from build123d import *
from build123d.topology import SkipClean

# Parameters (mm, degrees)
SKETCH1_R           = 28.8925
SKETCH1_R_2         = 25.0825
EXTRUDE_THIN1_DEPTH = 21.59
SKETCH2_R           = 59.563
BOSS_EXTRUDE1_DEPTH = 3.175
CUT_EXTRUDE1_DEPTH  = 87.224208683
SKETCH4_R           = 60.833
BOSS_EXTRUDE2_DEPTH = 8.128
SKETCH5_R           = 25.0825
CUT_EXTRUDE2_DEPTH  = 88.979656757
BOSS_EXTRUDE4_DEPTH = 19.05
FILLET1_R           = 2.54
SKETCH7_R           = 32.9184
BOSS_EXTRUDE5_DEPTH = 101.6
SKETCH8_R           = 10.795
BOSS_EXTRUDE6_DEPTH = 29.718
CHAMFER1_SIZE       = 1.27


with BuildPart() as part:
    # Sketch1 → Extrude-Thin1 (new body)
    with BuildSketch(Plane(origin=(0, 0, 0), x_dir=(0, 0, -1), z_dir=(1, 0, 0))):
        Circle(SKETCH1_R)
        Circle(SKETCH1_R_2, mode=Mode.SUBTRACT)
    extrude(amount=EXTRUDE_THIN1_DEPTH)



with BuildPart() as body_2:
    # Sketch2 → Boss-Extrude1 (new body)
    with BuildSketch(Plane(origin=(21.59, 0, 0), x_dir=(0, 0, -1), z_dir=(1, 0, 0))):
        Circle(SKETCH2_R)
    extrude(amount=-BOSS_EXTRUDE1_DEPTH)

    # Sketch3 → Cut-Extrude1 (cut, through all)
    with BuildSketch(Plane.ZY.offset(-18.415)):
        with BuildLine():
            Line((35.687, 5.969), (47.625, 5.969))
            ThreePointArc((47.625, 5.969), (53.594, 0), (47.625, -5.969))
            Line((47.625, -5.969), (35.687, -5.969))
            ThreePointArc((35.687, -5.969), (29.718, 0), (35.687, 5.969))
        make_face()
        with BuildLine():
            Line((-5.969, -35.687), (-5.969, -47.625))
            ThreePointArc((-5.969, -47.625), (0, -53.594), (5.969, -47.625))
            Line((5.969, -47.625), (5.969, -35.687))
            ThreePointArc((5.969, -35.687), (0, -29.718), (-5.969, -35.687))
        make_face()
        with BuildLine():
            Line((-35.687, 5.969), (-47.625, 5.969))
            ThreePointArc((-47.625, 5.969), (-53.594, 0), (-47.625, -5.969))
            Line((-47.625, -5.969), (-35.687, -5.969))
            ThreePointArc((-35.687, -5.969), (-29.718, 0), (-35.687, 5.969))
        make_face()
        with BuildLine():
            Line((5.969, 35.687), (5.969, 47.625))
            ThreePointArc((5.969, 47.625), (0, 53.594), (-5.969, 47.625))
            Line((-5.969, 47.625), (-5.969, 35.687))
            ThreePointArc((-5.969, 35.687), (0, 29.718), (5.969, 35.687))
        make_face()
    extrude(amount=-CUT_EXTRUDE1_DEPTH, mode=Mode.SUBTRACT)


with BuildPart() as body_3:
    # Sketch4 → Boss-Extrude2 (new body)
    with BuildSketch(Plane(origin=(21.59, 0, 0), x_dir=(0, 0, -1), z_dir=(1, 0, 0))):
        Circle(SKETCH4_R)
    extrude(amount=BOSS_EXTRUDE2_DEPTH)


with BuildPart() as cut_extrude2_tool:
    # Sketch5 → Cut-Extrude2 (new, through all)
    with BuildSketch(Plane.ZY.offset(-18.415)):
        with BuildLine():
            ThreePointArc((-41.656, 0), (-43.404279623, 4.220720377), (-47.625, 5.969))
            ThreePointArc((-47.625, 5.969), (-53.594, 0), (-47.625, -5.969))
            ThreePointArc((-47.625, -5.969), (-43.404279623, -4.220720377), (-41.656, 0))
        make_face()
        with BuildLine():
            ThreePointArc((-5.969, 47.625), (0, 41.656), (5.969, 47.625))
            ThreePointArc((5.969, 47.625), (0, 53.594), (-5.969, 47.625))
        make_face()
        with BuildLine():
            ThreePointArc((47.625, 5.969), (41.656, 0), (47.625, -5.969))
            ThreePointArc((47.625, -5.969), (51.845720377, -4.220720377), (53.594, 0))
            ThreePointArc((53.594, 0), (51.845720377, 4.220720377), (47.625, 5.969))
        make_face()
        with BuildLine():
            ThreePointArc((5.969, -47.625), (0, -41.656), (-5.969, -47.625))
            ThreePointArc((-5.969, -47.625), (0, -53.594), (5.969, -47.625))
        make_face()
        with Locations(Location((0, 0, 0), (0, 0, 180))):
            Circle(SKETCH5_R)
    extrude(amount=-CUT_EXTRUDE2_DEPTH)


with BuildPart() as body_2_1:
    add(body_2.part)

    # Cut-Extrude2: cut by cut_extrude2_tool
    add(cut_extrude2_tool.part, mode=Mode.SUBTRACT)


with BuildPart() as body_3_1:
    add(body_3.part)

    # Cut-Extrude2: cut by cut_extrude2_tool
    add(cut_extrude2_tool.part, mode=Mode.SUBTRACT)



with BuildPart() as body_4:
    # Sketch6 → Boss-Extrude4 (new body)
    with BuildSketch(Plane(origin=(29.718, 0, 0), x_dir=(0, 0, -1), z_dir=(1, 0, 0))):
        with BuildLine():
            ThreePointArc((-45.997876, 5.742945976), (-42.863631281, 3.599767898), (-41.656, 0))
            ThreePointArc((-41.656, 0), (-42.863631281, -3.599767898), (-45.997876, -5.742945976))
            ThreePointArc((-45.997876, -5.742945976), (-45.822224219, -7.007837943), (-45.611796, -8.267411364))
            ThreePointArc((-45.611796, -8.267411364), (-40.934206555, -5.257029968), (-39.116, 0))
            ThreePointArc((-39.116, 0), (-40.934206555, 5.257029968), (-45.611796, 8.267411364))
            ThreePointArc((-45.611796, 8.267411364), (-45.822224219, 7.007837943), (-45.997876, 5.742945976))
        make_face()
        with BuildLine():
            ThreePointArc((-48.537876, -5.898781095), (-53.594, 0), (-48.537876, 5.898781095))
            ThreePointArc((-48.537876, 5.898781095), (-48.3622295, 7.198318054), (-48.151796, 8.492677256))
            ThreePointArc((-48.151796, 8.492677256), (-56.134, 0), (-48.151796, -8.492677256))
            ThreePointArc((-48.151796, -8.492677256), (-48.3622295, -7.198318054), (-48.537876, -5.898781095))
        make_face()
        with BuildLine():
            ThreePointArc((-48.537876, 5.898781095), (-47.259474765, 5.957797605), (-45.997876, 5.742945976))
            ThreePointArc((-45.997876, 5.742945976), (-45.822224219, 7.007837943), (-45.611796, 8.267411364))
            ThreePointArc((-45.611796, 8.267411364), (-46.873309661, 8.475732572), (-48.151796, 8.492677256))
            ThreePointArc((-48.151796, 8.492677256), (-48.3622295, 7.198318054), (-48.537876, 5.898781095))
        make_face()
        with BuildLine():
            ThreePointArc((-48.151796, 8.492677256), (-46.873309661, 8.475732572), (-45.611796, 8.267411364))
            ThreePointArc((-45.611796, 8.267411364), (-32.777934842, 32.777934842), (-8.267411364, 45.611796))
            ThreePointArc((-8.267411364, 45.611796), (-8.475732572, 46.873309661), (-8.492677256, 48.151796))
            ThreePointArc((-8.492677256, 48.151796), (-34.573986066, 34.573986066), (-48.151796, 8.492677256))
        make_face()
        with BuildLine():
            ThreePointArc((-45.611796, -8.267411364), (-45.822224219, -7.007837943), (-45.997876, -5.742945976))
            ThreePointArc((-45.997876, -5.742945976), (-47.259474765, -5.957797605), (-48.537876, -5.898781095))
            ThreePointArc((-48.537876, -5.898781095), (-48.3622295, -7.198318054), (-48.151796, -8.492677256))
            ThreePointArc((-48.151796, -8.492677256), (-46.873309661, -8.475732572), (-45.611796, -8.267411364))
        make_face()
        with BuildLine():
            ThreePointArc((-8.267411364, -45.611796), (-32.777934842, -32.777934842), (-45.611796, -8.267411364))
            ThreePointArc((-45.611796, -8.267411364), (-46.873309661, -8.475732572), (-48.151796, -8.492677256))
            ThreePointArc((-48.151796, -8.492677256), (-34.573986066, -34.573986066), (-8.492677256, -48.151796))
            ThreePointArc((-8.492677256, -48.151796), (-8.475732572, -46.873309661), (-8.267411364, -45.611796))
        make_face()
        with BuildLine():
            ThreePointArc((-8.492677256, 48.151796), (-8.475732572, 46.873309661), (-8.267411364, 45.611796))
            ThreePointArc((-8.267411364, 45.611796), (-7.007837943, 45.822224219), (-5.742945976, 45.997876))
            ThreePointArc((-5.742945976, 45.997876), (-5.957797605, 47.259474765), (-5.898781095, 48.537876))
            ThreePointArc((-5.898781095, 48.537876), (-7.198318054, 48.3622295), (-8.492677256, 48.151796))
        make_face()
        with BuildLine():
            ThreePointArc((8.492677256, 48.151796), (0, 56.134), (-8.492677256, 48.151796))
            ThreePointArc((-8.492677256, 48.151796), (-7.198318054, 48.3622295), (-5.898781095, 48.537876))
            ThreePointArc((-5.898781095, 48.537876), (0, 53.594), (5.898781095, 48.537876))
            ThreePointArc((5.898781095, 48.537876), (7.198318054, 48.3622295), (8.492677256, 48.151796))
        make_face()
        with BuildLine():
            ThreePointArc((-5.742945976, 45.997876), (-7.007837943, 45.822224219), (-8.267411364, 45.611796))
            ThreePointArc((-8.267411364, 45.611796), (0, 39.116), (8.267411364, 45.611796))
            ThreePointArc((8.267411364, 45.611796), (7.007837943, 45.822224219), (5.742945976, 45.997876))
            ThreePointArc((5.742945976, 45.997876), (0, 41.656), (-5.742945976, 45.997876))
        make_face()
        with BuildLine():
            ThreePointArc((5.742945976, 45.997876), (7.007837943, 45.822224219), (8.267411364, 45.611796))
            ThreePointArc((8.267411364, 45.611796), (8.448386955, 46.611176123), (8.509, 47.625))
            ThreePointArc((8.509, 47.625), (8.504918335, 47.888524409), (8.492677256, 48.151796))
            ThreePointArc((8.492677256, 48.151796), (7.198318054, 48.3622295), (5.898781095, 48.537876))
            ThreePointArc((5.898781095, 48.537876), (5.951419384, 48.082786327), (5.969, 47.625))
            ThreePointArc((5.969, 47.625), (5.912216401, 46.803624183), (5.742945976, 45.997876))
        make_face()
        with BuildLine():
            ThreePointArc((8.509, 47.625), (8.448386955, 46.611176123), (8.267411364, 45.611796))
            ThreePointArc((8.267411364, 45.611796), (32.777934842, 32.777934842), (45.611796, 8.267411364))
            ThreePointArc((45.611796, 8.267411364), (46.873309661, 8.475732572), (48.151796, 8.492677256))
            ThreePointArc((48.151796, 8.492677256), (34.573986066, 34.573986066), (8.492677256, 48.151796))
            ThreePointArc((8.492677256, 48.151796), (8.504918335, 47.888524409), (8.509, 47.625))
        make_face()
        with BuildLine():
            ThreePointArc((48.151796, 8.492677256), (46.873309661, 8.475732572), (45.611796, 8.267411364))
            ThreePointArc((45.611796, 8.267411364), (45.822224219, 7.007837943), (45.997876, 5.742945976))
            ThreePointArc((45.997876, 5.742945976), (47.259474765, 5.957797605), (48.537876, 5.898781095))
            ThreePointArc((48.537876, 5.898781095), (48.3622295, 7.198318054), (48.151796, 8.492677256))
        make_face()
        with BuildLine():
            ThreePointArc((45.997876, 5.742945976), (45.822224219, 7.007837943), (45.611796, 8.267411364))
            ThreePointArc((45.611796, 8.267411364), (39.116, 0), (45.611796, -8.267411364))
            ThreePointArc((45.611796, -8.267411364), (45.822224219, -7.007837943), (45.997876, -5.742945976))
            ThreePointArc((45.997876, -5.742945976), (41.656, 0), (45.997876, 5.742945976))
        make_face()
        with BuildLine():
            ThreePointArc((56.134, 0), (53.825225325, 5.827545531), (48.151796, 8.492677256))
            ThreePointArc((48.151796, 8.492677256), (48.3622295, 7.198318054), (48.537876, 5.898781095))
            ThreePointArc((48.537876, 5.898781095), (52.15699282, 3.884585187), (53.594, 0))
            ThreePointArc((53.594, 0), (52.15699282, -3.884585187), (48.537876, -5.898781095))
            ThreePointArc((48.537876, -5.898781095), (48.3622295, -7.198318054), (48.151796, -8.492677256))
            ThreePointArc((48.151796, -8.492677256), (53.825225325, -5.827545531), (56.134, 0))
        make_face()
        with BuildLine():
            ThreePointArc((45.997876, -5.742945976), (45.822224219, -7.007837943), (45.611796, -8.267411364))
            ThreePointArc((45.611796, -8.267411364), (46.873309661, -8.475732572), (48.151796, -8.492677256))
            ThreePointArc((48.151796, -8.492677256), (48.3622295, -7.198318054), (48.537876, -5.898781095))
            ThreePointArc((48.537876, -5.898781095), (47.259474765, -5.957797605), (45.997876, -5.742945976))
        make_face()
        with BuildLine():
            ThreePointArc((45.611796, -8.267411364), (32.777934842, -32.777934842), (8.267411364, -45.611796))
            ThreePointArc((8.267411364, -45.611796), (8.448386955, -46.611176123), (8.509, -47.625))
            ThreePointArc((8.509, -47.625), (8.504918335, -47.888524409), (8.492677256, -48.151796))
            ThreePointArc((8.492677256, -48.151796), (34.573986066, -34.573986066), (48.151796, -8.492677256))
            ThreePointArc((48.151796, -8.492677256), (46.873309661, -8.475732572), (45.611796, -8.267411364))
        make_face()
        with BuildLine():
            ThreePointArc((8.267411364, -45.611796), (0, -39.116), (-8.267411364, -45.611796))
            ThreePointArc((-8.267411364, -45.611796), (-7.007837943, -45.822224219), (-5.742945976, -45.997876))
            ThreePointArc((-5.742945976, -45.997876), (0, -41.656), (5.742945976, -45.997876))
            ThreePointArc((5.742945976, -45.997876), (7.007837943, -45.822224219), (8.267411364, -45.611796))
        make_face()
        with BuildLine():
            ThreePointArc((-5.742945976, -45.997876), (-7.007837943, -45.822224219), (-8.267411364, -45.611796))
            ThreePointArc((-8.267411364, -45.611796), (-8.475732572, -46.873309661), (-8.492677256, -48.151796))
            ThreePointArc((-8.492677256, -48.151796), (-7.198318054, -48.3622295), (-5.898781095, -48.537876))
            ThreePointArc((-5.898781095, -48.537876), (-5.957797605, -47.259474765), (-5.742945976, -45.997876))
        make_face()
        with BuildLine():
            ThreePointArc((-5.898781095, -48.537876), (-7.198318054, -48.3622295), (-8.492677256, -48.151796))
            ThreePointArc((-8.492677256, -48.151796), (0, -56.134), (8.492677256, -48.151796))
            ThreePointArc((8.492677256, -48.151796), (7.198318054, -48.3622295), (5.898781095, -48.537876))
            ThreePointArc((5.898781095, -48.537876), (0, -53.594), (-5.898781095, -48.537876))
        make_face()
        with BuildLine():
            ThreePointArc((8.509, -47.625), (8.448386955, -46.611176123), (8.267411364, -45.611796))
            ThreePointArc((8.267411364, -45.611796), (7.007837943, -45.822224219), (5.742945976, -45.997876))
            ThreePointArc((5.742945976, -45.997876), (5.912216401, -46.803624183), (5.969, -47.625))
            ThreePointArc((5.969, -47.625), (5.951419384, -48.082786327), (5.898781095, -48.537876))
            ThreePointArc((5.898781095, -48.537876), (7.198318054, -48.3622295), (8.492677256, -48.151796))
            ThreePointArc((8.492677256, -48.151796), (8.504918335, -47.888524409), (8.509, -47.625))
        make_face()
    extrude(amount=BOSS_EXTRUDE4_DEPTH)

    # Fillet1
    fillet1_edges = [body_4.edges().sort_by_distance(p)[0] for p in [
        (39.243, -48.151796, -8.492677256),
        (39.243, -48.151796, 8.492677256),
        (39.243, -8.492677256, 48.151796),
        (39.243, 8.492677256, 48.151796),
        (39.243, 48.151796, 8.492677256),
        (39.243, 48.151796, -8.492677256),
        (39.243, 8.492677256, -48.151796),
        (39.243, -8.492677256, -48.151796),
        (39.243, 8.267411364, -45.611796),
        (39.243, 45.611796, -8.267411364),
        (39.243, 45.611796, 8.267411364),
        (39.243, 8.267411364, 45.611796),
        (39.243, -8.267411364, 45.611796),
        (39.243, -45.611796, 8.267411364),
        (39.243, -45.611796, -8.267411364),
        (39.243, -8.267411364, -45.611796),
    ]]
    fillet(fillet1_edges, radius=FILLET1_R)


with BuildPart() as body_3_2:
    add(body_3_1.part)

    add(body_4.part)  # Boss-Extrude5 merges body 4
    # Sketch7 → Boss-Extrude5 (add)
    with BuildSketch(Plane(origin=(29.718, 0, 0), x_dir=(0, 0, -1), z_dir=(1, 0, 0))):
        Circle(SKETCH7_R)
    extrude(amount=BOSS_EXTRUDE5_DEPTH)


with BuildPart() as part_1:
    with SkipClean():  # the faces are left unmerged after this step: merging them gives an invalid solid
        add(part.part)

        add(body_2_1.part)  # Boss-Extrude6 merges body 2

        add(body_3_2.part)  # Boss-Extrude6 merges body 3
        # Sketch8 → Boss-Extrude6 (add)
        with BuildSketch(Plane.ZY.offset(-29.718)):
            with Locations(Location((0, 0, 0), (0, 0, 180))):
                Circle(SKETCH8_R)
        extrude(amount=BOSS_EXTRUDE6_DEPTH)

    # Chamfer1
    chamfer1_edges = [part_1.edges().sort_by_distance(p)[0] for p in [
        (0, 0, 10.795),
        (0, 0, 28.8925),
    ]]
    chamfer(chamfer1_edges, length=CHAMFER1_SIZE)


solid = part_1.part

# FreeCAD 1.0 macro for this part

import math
import FreeCAD as App
import Part
import Sketcher

V = App.Vector
Q = App.Units.Quantity


def edges_at(feature, points):
    """Names of the edges that pass closest to the given points."""
    edges = feature.Shape.Edges
    near = lambda p: min(range(len(edges)), key=lambda i: edges[i].distToShape(Part.Vertex(*p))[0])
    return sorted({f"Edge{near(p) + 1}" for p in points})

doc = App.newDocument("Part")
body = doc.addObject("PartDesign::Body", "Body")

sketch1 = doc.addObject("Sketcher::SketchObject", "Sketch")
body.addObject(sketch1)
sketch1.AttachmentSupport = (doc.YZ_Plane, [""])
sketch1.MapMode = "FlatFace"
sketch1.addGeometry([
    Part.Circle(V(0, 0, 0), V(0, 0, 1), 29),
    Part.Circle(V(0, 0, 0), V(0, 0, 1), 25),
], False)
sketch1.addConstraint([
    Sketcher.Constraint("Coincident", 0, 3, -1, 1),
    Sketcher.Constraint("Coincident", 1, 3, -1, 1),
    Sketcher.Constraint("Diameter", 0, Q("2.275 in")),
    Sketcher.Constraint("Diameter", 1, Q("1.975 in")),
])
pad1 = doc.addObject("PartDesign::Pad", "Pad")
body.addObject(pad1)
pad1.Profile = sketch1
pad1.Length = Q("0.85 in")
body2 = doc.addObject("PartDesign::Body", "Body001")

sketch2 = doc.addObject("Sketcher::SketchObject", "Sketch001")
body2.addObject(sketch2)
sketch2.AttachmentSupport = (doc.getObject("YZ_Plane001"), [""])
sketch2.MapMode = "FlatFace"
sketch2.AttachmentOffset = App.Placement(V(0, 0, 0.85 * 25.4), App.Rotation())
sketch2.addGeometry(Part.Circle(V(0, 0, 0), V(0, 0, 1), 60), False)
sketch2.addConstraint([
    Sketcher.Constraint("Coincident", 0, 3, -1, 1),
    Sketcher.Constraint("Diameter", 0, Q("4.69 in")),
])
pad2 = doc.addObject("PartDesign::Pad", "Pad001")
body2.addObject(pad2)
pad2.Profile = sketch2
pad2.Length = Q("0.125 in")
pad2.Reversed = True

sketch3 = doc.addObject("Sketcher::SketchObject", "Sketch002")
body2.addObject(sketch3)
sketch3.AttachmentSupport = (doc.getObject("YZ_Plane001"), [""])
sketch3.MapMode = "FlatFace"
sketch3.AttachmentOffset = App.Placement(V(0, 0, 0.725 * 25.4), App.Rotation())
sketch3.addGeometry([
    Part.LineSegment(V(6, 48, 0), V(6, 36, 0)),
    Part.ArcOfCircle(Part.Circle(V(0, 36, 0), V(0, 0, 1), 6), math.radians(180), math.radians(360)),
    Part.LineSegment(V(-6, 36, 0), V(-6, 48, 0)),
    Part.ArcOfCircle(Part.Circle(V(0, 48, 0), V(0, 0, 1), 6), math.radians(0), math.radians(180)),
    Part.LineSegment(V(-36, -6, 0), V(-48, -6, 0)),
    Part.ArcOfCircle(Part.Circle(V(-48, 0, 0), V(0, 0, 1), 6), math.radians(90), math.radians(270)),
    Part.LineSegment(V(-48, 6, 0), V(-36, 6, 0)),
    Part.ArcOfCircle(Part.Circle(V(-36, 0, 0), V(0, 0, 1), 6), math.radians(-90), math.radians(90)),
    Part.LineSegment(V(6, -36, 0), V(6, -48, 0)),
    Part.ArcOfCircle(Part.Circle(V(0, -48, 0), V(0, 0, 1), 6), math.radians(180), math.radians(360)),
    Part.LineSegment(V(-6, -48, 0), V(-6, -36, 0)),
    Part.ArcOfCircle(Part.Circle(V(0, -36, 0), V(0, 0, 1), 6), math.radians(0), math.radians(180)),
    Part.LineSegment(V(36, 6, 0), V(48, 6, 0)),
    Part.ArcOfCircle(Part.Circle(V(48, 0, 0), V(0, 0, 1), 6), math.radians(-90), math.radians(90)),
    Part.LineSegment(V(48, -6, 0), V(36, -6, 0)),
    Part.ArcOfCircle(Part.Circle(V(36, 0, 0), V(0, 0, 1), 6), math.radians(90), math.radians(270)),
], False)
sketch3.addConstraint([
    Sketcher.Constraint("Tangent", 0, 2, 1, 2),
    Sketcher.Constraint("Tangent", 1, 1, 2, 1),
    Sketcher.Constraint("Tangent", 2, 2, 3, 2),
    Sketcher.Constraint("Tangent", 3, 1, 0, 1),
    Sketcher.Constraint("Tangent", 4, 2, 5, 2),
    Sketcher.Constraint("Tangent", 5, 1, 6, 1),
    Sketcher.Constraint("Tangent", 6, 2, 7, 2),
    Sketcher.Constraint("Tangent", 7, 1, 4, 1),
    Sketcher.Constraint("Tangent", 8, 2, 9, 2),
    Sketcher.Constraint("Tangent", 9, 1, 10, 1),
    Sketcher.Constraint("Tangent", 10, 2, 11, 2),
    Sketcher.Constraint("Tangent", 11, 1, 8, 1),
    Sketcher.Constraint("Tangent", 12, 2, 13, 2),
    Sketcher.Constraint("Tangent", 13, 1, 14, 1),
    Sketcher.Constraint("Tangent", 14, 2, 15, 2),
    Sketcher.Constraint("Tangent", 15, 1, 12, 1),
    Sketcher.Constraint("Vertical", 0),
    Sketcher.Constraint("Vertical", 2),
    Sketcher.Constraint("Horizontal", 4),
    Sketcher.Constraint("Horizontal", 6),
    Sketcher.Constraint("Vertical", 8),
    Sketcher.Constraint("Vertical", 10),
    Sketcher.Constraint("Horizontal", 12),
    Sketcher.Constraint("Horizontal", 14),
    Sketcher.Constraint("Equal", 3, 5),
    Sketcher.Constraint("Equal", 7, 9),
    Sketcher.Constraint("Equal", 11, 13),
    Sketcher.Constraint("Symmetric", 3, 3, 9, 3, -1, 1),
    Sketcher.Constraint("Symmetric", 5, 3, 13, 3, -1, 1),
    Sketcher.Constraint("Symmetric", 7, 3, 15, 3, -2),
    Sketcher.Constraint("Symmetric", 1, 3, 11, 3, -1),
    Sketcher.Constraint("Equal", 14, 0),
    Sketcher.Constraint("Radius", 1, Q("0.235 in")),
    Sketcher.Constraint("DistanceX", 4, 2, 4, 1, Q("0.47 in")),
    Sketcher.Constraint("DistanceY", 9, 3, 1, 3, Q("3.28 in")),
    Sketcher.Constraint("DistanceX", 7, 3, 13, 3, Q("3.28 in")),
])
pocket1 = doc.addObject("PartDesign::Pocket", "Pocket")
body2.addObject(pocket1)
pocket1.Profile = sketch3
pocket1.Type = "ThroughAll"
pocket1.Reversed = True
body3 = doc.addObject("PartDesign::Body", "Body002")

sketch4 = doc.addObject("Sketcher::SketchObject", "Sketch003")
body3.addObject(sketch4)
sketch4.AttachmentSupport = (doc.getObject("YZ_Plane002"), [""])
sketch4.MapMode = "FlatFace"
sketch4.AttachmentOffset = App.Placement(V(0, 0, 0.85 * 25.4), App.Rotation())
sketch4.addGeometry(Part.Circle(V(0, 0, 0), V(0, 0, 1), 61), False)
sketch4.addConstraint([
    Sketcher.Constraint("Coincident", 0, 3, -1, 1),
    Sketcher.Constraint("Diameter", 0, Q("4.79 in")),
])
pad3 = doc.addObject("PartDesign::Pad", "Pad002")
body3.addObject(pad3)
pad3.Profile = sketch4
pad3.Length = Q("0.32 in")
body4 = doc.addObject("PartDesign::Body", "Body003")
body4.AllowCompound = True

sketch5 = doc.addObject("Sketcher::SketchObject", "Sketch004")
body4.addObject(sketch5)
sketch5.AttachmentSupport = (doc.getObject("YZ_Plane003"), [""])
sketch5.MapMode = "FlatFace"
sketch5.AttachmentOffset = App.Placement(V(0, 0, 0.725 * 25.4), App.Rotation())
sketch5.addGeometry([
    Part.ArcOfCircle(Part.Circle(V(0, -48, 0), V(0, 0, 1), 6), math.radians(0), math.radians(90)),
    Part.ArcOfCircle(Part.Circle(V(0, -48, 0), V(0, 0, 1), 6), math.radians(180), math.radians(360)),
    Part.ArcOfCircle(Part.Circle(V(0, -48, 0), V(0, 0, 1), 6), math.radians(90), math.radians(180)),
    Part.Circle(V(48, 0, 0), V(0, 0, 1), 6),
    Part.ArcOfCircle(Part.Circle(V(0, 48, 0), V(0, 0, 1), 6), math.radians(180), math.radians(360)),
    Part.ArcOfCircle(Part.Circle(V(0, 48, 0), V(0, 0, 1), 6), math.radians(90), math.radians(180)),
    Part.ArcOfCircle(Part.Circle(V(0, 48, 0), V(0, 0, 1), 6), math.radians(0), math.radians(90)),
    Part.Circle(V(-48, 0, 0), V(0, 0, 1), 6),
    Part.Circle(V(0, 0, 0), V(0, 0, 1), 25),
], False)
sketch5.addConstraint([
    Sketcher.Constraint("Tangent", 0, 1, 1, 2),
    Sketcher.Constraint("Tangent", 1, 1, 2, 2),
    Sketcher.Constraint("Tangent", 2, 1, 0, 2),
    Sketcher.Constraint("Tangent", 4, 1, 5, 2),
    Sketcher.Constraint("Tangent", 5, 1, 6, 2),
    Sketcher.Constraint("Tangent", 6, 1, 4, 2),
    Sketcher.Constraint("Coincident", 8, 3, -1, 1),
    Sketcher.Constraint("Equal", 2, 3),
    Sketcher.Constraint("Equal", 3, 4),
    Sketcher.Constraint("Equal", 6, 7),
    Sketcher.Constraint("Symmetric", 0, 3, 4, 3, -1, 1),
    Sketcher.Constraint("Symmetric", 3, 3, 7, 3, -1, 1),
    Sketcher.Constraint("Symmetric", 0, 1, 1, 1, -2),
    Sketcher.Constraint("PointOnObject", 3, 3, -1),
    Sketcher.Constraint("PointOnObject", 2, 1, -2),
    Sketcher.Constraint("PointOnObject", 5, 1, -2),
    Sketcher.Constraint("Horizontal", 2, 3, 0, 1),
    Sketcher.Constraint("Horizontal", 6, 3, 4, 1),
    Sketcher.Constraint("Horizontal", 4, 1, 6, 1),
    Sketcher.Constraint("Diameter", 3, Q("0.47 in")),
    Sketcher.Constraint("Diameter", 8, Q("1.975 in")),
    Sketcher.Constraint("DistanceY", 2, 1, -1, 1, Q("1.64 in")),
    Sketcher.Constraint("DistanceX", 0, 1, 3, 3, Q("1.64 in")),
])
pad4 = doc.addObject("PartDesign::Pad", "Pad003")
body4.addObject(pad4)
pad4.Profile = sketch5
pad4.Length = 88.979657
doc.recompute()

body5 = doc.addObject("PartDesign::Body", "Body004")
body5.BaseFeature = body4
boolean = doc.addObject("PartDesign::Boolean", "Boolean")
body2.addObject(boolean)
boolean.Type = "Cut"
boolean.addObjects([body5])
doc.recompute()

boolean2 = doc.addObject("PartDesign::Boolean", "Boolean001")
body3.addObject(boolean2)
boolean2.Type = "Cut"
boolean2.addObjects([body4])
body6 = doc.addObject("PartDesign::Body", "Body005")

sketch6 = doc.addObject("Sketcher::SketchObject", "Sketch005")
body6.addObject(sketch6)
sketch6.AttachmentSupport = (doc.getObject("YZ_Plane005"), [""])
sketch6.MapMode = "FlatFace"
sketch6.AttachmentOffset = App.Placement(V(0, 0, 1.17 * 25.4), App.Rotation())
sketch6.addGeometry([
    Part.ArcOfCircle(Part.Circle(V(-47.6, 0, 0), V(0, 0, 1), 8.5), math.radians(94), math.radians(266)),
    Part.ArcOfCircle(Part.Circle(V(0, 0, 0), V(0, 0, 1), 48.9), math.radians(-170), math.radians(-100)),
    Part.ArcOfCircle(Part.Circle(V(0, -47.6, 0), V(0, 0, 1), 8.5), math.radians(-176), math.radians(-90)),
    Part.ArcOfCircle(Part.Circle(V(0, -47.6, 0), V(0, 0, 1), 8.5), math.radians(-90), math.radians(-4)),
    Part.ArcOfCircle(Part.Circle(V(0, 0, 0), V(0, 0, 1), 48.9), math.radians(-80), math.radians(-10)),
    Part.ArcOfCircle(Part.Circle(V(47.6, 0, 0), V(0, 0, 1), 8.5), math.radians(-86), math.radians(86)),
    Part.ArcOfCircle(Part.Circle(V(0, 0, 0), V(0, 0, 1), 48.9), math.radians(10), math.radians(80)),
    Part.ArcOfCircle(Part.Circle(V(0, 47.6, 0), V(0, 0, 1), 8.5), math.radians(4), math.radians(176)),
    Part.ArcOfCircle(Part.Circle(V(0, 0, 0), V(0, 0, 1), 48.9), math.radians(100), math.radians(170)),
    Part.ArcOfCircle(Part.Circle(V(-47.6, 0, 0), V(0, 0, 1), 6), math.radians(-74), math.radians(74)),
    Part.ArcOfCircle(Part.Circle(V(-47.6, 0, 0), V(0, 0, 1), 6), math.radians(-90), math.radians(-74.18)),
    Part.ArcOfCircle(Part.Circle(V(-47.6, 0, 0), V(0, 0, 1), 6), math.radians(-98.8), math.radians(-90)),
    Part.ArcOfCircle(Part.Circle(V(-47.6, 0, 0), V(0, 0, 1), 6), math.radians(99), math.radians(261)),
    Part.ArcOfCircle(Part.Circle(V(-47.6, 0, 0), V(0, 0, 1), 6), math.radians(74), math.radians(99)),
    Part.ArcOfCircle(Part.Circle(V(0, 47.6, 0), V(0, 0, 1), 6), math.radians(-90), math.radians(-16)),
    Part.ArcOfCircle(Part.Circle(V(0, 47.6, 0), V(0, 0, 1), 6), math.radians(-164), math.radians(-90)),
    Part.ArcOfCircle(Part.Circle(V(0, 47.6, 0), V(0, 0, 1), 6), math.radians(171), math.radians(196)),
    Part.ArcOfCircle(Part.Circle(V(0, 47.6, 0), V(0, 0, 1), 6), math.radians(9), math.radians(171)),
    Part.ArcOfCircle(Part.Circle(V(0, 47.6, 0), V(0, 0, 1), 6), math.radians(-16), math.radians(9)),
    Part.ArcOfCircle(Part.Circle(V(0, 0, 0), V(0, 0, 1), 46.4), math.radians(-170), math.radians(-100)),
    Part.ArcOfCircle(Part.Circle(V(-47.6, 0, 0), V(0, 0, 1), 8.5), math.radians(-76), math.radians(76)),
    Part.ArcOfCircle(Part.Circle(V(0, 0, 0), V(0, 0, 1), 46.4), math.radians(100), math.radians(170)),
    Part.ArcOfCircle(Part.Circle(V(0, 47.6, 0), V(0, 0, 1), 8.5), math.radians(-166), math.radians(-90)),
    Part.ArcOfCircle(Part.Circle(V(0, 47.6, 0), V(0, 0, 1), 8.5), math.radians(-90), math.radians(-14)),
    Part.ArcOfCircle(Part.Circle(V(0, 0, 0), V(0, 0, 1), 46.4), math.radians(10), math.radians(80)),
    Part.ArcOfCircle(Part.Circle(V(47.6, 0, 0), V(0, 0, 1), 8.5), math.radians(104), math.radians(256)),
    Part.ArcOfCircle(Part.Circle(V(0, 0, 0), V(0, 0, 1), 46.4), math.radians(-80), math.radians(-10)),
    Part.ArcOfCircle(Part.Circle(V(0, -47.6, 0), V(0, 0, 1), 8.5), math.radians(14), math.radians(166)),
    Part.ArcOfCircle(Part.Circle(V(0, -47.6, 0), V(0, 0, 1), 6), math.radians(16), math.radians(164)),
    Part.ArcOfCircle(Part.Circle(V(0, -47.6, 0), V(0, 0, 1), 6), math.radians(-9), math.radians(16)),
    Part.ArcOfCircle(Part.Circle(V(0, -47.6, 0), V(0, 0, 1), 6), math.radians(-90), math.radians(-9)),
    Part.ArcOfCircle(Part.Circle(V(0, -47.6, 0), V(0, 0, 1), 6), math.radians(-171), math.radians(-90)),
    Part.ArcOfCircle(Part.Circle(V(0, -47.6, 0), V(0, 0, 1), 6), math.radians(164), math.radians(189)),
    Part.ArcOfCircle(Part.Circle(V(47.6, 0, 0), V(0, 0, 1), 6), math.radians(106), math.radians(254)),
    Part.ArcOfCircle(Part.Circle(V(47.6, 0, 0), V(0, 0, 1), 6), math.radians(81), math.radians(106)),
    Part.ArcOfCircle(Part.Circle(V(47.6, 0, 0), V(0, 0, 1), 6), math.radians(-81), math.radians(81)),
    Part.ArcOfCircle(Part.Circle(V(47.6, 0, 0), V(0, 0, 1), 6), math.radians(-90), math.radians(-81.2)),
    Part.ArcOfCircle(Part.Circle(V(47.6, 0, 0), V(0, 0, 1), 6), math.radians(-105.82), math.radians(-90)),
], False)
sketch6.addConstraint([
    Sketcher.Constraint("Coincident", 0, 2, 1, 1),
    Sketcher.Constraint("Coincident", 1, 2, 2, 1),
    Sketcher.Constraint("Tangent", 2, 2, 3, 1),
    Sketcher.Constraint("Coincident", 3, 2, 4, 1),
    Sketcher.Constraint("Coincident", 4, 2, 5, 1),
    Sketcher.Constraint("Coincident", 5, 2, 6, 1),
    Sketcher.Constraint("Coincident", 6, 2, 7, 1),
    Sketcher.Constraint("Coincident", 7, 2, 8, 1),
    Sketcher.Constraint("Coincident", 8, 2, 0, 1),
    Sketcher.Constraint("Tangent", 9, 1, 10, 2),
    Sketcher.Constraint("Tangent", 10, 1, 11, 2),
    Sketcher.Constraint("Tangent", 11, 1, 12, 2),
    Sketcher.Constraint("Tangent", 12, 1, 13, 2),
    Sketcher.Constraint("Tangent", 13, 1, 9, 2),
    Sketcher.Constraint("Tangent", 14, 1, 15, 2),
    Sketcher.Constraint("Tangent", 15, 1, 16, 2),
    Sketcher.Constraint("Tangent", 16, 1, 17, 2),
    Sketcher.Constraint("Tangent", 17, 1, 18, 2),
    Sketcher.Constraint("Tangent", 18, 1, 14, 2),
    Sketcher.Constraint("Coincident", 19, 1, 20, 1),
    Sketcher.Constraint("Coincident", 20, 2, 21, 2),
    Sketcher.Constraint("Coincident", 21, 1, 22, 1),
    Sketcher.Constraint("Tangent", 22, 2, 23, 1),
    Sketcher.Constraint("Coincident", 23, 2, 24, 2),
    Sketcher.Constraint("Coincident", 24, 1, 25, 1),
    Sketcher.Constraint("Coincident", 25, 2, 26, 2),
    Sketcher.Constraint("Coincident", 26, 1, 27, 1),
    Sketcher.Constraint("Coincident", 27, 2, 19, 2),
    Sketcher.Constraint("Tangent", 28, 1, 29, 2),
    Sketcher.Constraint("Tangent", 29, 1, 30, 2),
    Sketcher.Constraint("Tangent", 30, 1, 31, 2),
    Sketcher.Constraint("Tangent", 31, 1, 32, 2),
    Sketcher.Constraint("Tangent", 32, 1, 28, 2),
    Sketcher.Constraint("Tangent", 33, 1, 34, 2),
    Sketcher.Constraint("Tangent", 34, 1, 35, 2),
    Sketcher.Constraint("Tangent", 35, 1, 36, 2),
    Sketcher.Constraint("Tangent", 36, 1, 37, 2),
    Sketcher.Constraint("Tangent", 37, 1, 33, 2),
    Sketcher.Constraint("Coincident", 1, 3, -1, 1),
    Sketcher.Constraint("Coincident", 4, 3, -1, 1),
    Sketcher.Constraint("Coincident", 6, 3, -1, 1),
    Sketcher.Constraint("Coincident", 8, 3, -1, 1),
    Sketcher.Constraint("Coincident", 19, 3, -1, 1),
    Sketcher.Constraint("Coincident", 21, 3, -1, 1),
    Sketcher.Constraint("Coincident", 24, 3, -1, 1),
    Sketcher.Constraint("Coincident", 26, 3, -1, 1),
    Sketcher.Constraint("Coincident", 9, 3, 0, 3),
    Sketcher.Constraint("Coincident", 11, 3, 0, 3),
    Sketcher.Constraint("Coincident", 14, 3, 7, 3),
    Sketcher.Constraint("Coincident", 16, 3, 7, 3),
    Sketcher.Constraint("Coincident", 20, 3, 0, 3),
    Sketcher.Constraint("Coincident", 22, 3, 7, 3),
    Sketcher.Constraint("Coincident", 25, 3, 5, 3),
    Sketcher.Constraint("Coincident", 27, 3, 2, 3),
    Sketcher.Constraint("Coincident", 28, 3, 2, 3),
    Sketcher.Constraint("Coincident", 30, 3, 2, 3),
    Sketcher.Constraint("Coincident", 33, 3, 5, 3),
    Sketcher.Constraint("Coincident", 35, 3, 5, 3),
    Sketcher.Constraint("Equal", 0, 2),
    Sketcher.Constraint("Equal", 2, 3),
    Sketcher.Constraint("Equal", 1, 4),
    Sketcher.Constraint("Equal", 3, 5),
    Sketcher.Constraint("Equal", 4, 6),
    Sketcher.Constraint("Equal", 5, 7),
    Sketcher.Constraint("Equal", 6, 8),
    Sketcher.Constraint("Equal", 13, 14),
    Sketcher.Constraint("Equal", 7, 20),
    Sketcher.Constraint("Equal", 19, 21),
    Sketcher.Constraint("Equal", 20, 22),
    Sketcher.Constraint("Equal", 22, 23),
    Sketcher.Constraint("Equal", 21, 24),
    Sketcher.Constraint("Equal", 23, 25),
    Sketcher.Constraint("Equal", 24, 26),
    Sketcher.Constraint("Equal", 25, 27),
    Sketcher.Constraint("Equal", 18, 28),
    Sketcher.Constraint("Equal", 32, 33),
    Sketcher.Constraint("Symmetric", 0, 3, 5, 3, -1, 1),
    Sketcher.Constraint("Symmetric", 2, 3, 7, 3, -1, 1),
    Sketcher.Constraint("Symmetric", 16, 1, 17, 1, -2),
    Sketcher.Constraint("Symmetric", 13, 1, 33, 1, -2),
    Sketcher.Constraint("PointOnObject", 2, 2, -2),
    Sketcher.Constraint("PointOnObject", 14, 1, -2),
    Sketcher.Constraint("PointOnObject", 22, 2, -2),
    Sketcher.Constraint("PointOnObject", 30, 1, -2),
    Sketcher.Constraint("Horizontal", 15, 1, 18, 1),
    Sketcher.Constraint("Horizontal", 29, 1, 31, 1),
    Sketcher.Constraint("Horizontal", 28, 1, 32, 1),
    Sketcher.Constraint("Horizontal", 12, 1, 34, 1),
    Sketcher.Constraint("Horizontal", 11, 1, 35, 1),
    Sketcher.Constraint("Horizontal", 9, 1, 37, 1),
    Sketcher.Constraint("Vertical", 20, 3, 10, 1),
    Sketcher.Constraint("Vertical", 11, 1, 12, 1),
    Sketcher.Constraint("Vertical", 9, 1, 13, 1),
    Sketcher.Constraint("Vertical", 18, 1, 28, 1),
    Sketcher.Constraint("Vertical", 17, 1, 29, 1),
    Sketcher.Constraint("Vertical", 37, 3, 36, 1),
    Sketcher.Constraint("Radius", 0, Q("0.335 in")),
    Sketcher.Constraint("Radius", 1, Q("1.925 in")),
    Sketcher.Constraint("Radius", 9, Q("0.235 in")),
    Sketcher.Constraint("Radius", 19, Q("1.825 in")),
    Sketcher.Constraint("DistanceY", 2, 2, -1, 1, Q("2.21 in")),
    Sketcher.Constraint("DistanceX", 0, 3, -1, 1, Q("1.875 in")),
    Sketcher.Constraint("DistanceY", 11, 1, -1, 1, 5.898781),
    Sketcher.Constraint("DistanceX", 16, 1, -1, 1, 5.898781),
    Sketcher.Constraint("DistanceX", 9, 1, -1, 1, 45.997876),
    Sketcher.Constraint("DistanceX", 15, 1, -1, 1, 5.742946),
])
pad5 = doc.addObject("PartDesign::Pad", "Pad004")
body6.addObject(pad5)
pad5.Profile = sketch6
pad5.Length = Q("0.75 in")
doc.recompute()

fillet = doc.addObject("PartDesign::Fillet", "Fillet")
body6.addObject(fillet)
fillet.Base = (pad5, edges_at(pad5, [
    (39.243, -48.152, -8.493),
    (39.243, -48.152, 8.493),
    (39.243, -8.493, 48.152),
    (39.243, 8.493, 48.152),
    (39.243, 48.152, 8.493),
    (39.243, 48.152, -8.493),
    (39.243, 8.493, -48.152),
    (39.243, -8.493, -48.152),
    (39.243, 8.267, -45.612),
    (39.243, 45.612, -8.267),
    (39.243, 45.612, 8.267),
    (39.243, 8.267, 45.612),
    (39.243, -8.267, 45.612),
    (39.243, -45.612, 8.267),
    (39.243, -45.612, -8.267),
    (39.243, -8.267, -45.612),
]))
fillet.Radius = Q("0.1 in")
doc.recompute()

boolean3 = doc.addObject("PartDesign::Boolean", "Boolean002")
body3.addObject(boolean3)
boolean3.Type = "Fuse"
boolean3.addObjects([body6])

sketch7 = doc.addObject("Sketcher::SketchObject", "Sketch006")
body3.addObject(sketch7)
sketch7.AttachmentSupport = (doc.getObject("YZ_Plane002"), [""])
sketch7.MapMode = "FlatFace"
sketch7.AttachmentOffset = App.Placement(V(0, 0, 1.17 * 25.4), App.Rotation())
sketch7.addGeometry(Part.Circle(V(0, 0, 0), V(0, 0, 1), 33), False)
sketch7.addConstraint([
    Sketcher.Constraint("Coincident", 0, 3, -1, 1),
    Sketcher.Constraint("Diameter", 0, Q("2.592 in")),
])
pad6 = doc.addObject("PartDesign::Pad", "Pad005")
body3.addObject(pad6)
pad6.Profile = sketch7
pad6.Length = Q("4 in")
doc.recompute()

boolean4 = doc.addObject("PartDesign::Boolean", "Boolean003")
body.addObject(boolean4)
boolean4.Type = "Fuse"
boolean4.addObjects([body2])
doc.recompute()

boolean5 = doc.addObject("PartDesign::Boolean", "Boolean004")
body.addObject(boolean5)
boolean5.Type = "Fuse"
boolean5.addObjects([body3])

sketch8 = doc.addObject("Sketcher::SketchObject", "Sketch007")
body.addObject(sketch8)
sketch8.AttachmentSupport = (doc.YZ_Plane, [""])
sketch8.MapMode = "FlatFace"
sketch8.AttachmentOffset = App.Placement(V(0, 0, 1.17 * 25.4), App.Rotation())
sketch8.addGeometry(Part.Circle(V(0, 0, 0), V(0, 0, 1), 11), False)
sketch8.addConstraint([
    Sketcher.Constraint("Coincident", 0, 3, -1, 1),
    Sketcher.Constraint("Diameter", 0, Q("0.85 in")),
])
pad7 = doc.addObject("PartDesign::Pad", "Pad006")
body.addObject(pad7)
pad7.Profile = sketch8
pad7.Length = Q("1.17 in")
pad7.Reversed = True
doc.recompute()

chamfer = doc.addObject("PartDesign::Chamfer", "Chamfer")
body.addObject(chamfer)
chamfer.Base = (pad7, edges_at(pad7, [(0, 0, 10.795), (0, 0, 28.892)]))
chamfer.Size = Q("0.05 in")

doc.recompute()
